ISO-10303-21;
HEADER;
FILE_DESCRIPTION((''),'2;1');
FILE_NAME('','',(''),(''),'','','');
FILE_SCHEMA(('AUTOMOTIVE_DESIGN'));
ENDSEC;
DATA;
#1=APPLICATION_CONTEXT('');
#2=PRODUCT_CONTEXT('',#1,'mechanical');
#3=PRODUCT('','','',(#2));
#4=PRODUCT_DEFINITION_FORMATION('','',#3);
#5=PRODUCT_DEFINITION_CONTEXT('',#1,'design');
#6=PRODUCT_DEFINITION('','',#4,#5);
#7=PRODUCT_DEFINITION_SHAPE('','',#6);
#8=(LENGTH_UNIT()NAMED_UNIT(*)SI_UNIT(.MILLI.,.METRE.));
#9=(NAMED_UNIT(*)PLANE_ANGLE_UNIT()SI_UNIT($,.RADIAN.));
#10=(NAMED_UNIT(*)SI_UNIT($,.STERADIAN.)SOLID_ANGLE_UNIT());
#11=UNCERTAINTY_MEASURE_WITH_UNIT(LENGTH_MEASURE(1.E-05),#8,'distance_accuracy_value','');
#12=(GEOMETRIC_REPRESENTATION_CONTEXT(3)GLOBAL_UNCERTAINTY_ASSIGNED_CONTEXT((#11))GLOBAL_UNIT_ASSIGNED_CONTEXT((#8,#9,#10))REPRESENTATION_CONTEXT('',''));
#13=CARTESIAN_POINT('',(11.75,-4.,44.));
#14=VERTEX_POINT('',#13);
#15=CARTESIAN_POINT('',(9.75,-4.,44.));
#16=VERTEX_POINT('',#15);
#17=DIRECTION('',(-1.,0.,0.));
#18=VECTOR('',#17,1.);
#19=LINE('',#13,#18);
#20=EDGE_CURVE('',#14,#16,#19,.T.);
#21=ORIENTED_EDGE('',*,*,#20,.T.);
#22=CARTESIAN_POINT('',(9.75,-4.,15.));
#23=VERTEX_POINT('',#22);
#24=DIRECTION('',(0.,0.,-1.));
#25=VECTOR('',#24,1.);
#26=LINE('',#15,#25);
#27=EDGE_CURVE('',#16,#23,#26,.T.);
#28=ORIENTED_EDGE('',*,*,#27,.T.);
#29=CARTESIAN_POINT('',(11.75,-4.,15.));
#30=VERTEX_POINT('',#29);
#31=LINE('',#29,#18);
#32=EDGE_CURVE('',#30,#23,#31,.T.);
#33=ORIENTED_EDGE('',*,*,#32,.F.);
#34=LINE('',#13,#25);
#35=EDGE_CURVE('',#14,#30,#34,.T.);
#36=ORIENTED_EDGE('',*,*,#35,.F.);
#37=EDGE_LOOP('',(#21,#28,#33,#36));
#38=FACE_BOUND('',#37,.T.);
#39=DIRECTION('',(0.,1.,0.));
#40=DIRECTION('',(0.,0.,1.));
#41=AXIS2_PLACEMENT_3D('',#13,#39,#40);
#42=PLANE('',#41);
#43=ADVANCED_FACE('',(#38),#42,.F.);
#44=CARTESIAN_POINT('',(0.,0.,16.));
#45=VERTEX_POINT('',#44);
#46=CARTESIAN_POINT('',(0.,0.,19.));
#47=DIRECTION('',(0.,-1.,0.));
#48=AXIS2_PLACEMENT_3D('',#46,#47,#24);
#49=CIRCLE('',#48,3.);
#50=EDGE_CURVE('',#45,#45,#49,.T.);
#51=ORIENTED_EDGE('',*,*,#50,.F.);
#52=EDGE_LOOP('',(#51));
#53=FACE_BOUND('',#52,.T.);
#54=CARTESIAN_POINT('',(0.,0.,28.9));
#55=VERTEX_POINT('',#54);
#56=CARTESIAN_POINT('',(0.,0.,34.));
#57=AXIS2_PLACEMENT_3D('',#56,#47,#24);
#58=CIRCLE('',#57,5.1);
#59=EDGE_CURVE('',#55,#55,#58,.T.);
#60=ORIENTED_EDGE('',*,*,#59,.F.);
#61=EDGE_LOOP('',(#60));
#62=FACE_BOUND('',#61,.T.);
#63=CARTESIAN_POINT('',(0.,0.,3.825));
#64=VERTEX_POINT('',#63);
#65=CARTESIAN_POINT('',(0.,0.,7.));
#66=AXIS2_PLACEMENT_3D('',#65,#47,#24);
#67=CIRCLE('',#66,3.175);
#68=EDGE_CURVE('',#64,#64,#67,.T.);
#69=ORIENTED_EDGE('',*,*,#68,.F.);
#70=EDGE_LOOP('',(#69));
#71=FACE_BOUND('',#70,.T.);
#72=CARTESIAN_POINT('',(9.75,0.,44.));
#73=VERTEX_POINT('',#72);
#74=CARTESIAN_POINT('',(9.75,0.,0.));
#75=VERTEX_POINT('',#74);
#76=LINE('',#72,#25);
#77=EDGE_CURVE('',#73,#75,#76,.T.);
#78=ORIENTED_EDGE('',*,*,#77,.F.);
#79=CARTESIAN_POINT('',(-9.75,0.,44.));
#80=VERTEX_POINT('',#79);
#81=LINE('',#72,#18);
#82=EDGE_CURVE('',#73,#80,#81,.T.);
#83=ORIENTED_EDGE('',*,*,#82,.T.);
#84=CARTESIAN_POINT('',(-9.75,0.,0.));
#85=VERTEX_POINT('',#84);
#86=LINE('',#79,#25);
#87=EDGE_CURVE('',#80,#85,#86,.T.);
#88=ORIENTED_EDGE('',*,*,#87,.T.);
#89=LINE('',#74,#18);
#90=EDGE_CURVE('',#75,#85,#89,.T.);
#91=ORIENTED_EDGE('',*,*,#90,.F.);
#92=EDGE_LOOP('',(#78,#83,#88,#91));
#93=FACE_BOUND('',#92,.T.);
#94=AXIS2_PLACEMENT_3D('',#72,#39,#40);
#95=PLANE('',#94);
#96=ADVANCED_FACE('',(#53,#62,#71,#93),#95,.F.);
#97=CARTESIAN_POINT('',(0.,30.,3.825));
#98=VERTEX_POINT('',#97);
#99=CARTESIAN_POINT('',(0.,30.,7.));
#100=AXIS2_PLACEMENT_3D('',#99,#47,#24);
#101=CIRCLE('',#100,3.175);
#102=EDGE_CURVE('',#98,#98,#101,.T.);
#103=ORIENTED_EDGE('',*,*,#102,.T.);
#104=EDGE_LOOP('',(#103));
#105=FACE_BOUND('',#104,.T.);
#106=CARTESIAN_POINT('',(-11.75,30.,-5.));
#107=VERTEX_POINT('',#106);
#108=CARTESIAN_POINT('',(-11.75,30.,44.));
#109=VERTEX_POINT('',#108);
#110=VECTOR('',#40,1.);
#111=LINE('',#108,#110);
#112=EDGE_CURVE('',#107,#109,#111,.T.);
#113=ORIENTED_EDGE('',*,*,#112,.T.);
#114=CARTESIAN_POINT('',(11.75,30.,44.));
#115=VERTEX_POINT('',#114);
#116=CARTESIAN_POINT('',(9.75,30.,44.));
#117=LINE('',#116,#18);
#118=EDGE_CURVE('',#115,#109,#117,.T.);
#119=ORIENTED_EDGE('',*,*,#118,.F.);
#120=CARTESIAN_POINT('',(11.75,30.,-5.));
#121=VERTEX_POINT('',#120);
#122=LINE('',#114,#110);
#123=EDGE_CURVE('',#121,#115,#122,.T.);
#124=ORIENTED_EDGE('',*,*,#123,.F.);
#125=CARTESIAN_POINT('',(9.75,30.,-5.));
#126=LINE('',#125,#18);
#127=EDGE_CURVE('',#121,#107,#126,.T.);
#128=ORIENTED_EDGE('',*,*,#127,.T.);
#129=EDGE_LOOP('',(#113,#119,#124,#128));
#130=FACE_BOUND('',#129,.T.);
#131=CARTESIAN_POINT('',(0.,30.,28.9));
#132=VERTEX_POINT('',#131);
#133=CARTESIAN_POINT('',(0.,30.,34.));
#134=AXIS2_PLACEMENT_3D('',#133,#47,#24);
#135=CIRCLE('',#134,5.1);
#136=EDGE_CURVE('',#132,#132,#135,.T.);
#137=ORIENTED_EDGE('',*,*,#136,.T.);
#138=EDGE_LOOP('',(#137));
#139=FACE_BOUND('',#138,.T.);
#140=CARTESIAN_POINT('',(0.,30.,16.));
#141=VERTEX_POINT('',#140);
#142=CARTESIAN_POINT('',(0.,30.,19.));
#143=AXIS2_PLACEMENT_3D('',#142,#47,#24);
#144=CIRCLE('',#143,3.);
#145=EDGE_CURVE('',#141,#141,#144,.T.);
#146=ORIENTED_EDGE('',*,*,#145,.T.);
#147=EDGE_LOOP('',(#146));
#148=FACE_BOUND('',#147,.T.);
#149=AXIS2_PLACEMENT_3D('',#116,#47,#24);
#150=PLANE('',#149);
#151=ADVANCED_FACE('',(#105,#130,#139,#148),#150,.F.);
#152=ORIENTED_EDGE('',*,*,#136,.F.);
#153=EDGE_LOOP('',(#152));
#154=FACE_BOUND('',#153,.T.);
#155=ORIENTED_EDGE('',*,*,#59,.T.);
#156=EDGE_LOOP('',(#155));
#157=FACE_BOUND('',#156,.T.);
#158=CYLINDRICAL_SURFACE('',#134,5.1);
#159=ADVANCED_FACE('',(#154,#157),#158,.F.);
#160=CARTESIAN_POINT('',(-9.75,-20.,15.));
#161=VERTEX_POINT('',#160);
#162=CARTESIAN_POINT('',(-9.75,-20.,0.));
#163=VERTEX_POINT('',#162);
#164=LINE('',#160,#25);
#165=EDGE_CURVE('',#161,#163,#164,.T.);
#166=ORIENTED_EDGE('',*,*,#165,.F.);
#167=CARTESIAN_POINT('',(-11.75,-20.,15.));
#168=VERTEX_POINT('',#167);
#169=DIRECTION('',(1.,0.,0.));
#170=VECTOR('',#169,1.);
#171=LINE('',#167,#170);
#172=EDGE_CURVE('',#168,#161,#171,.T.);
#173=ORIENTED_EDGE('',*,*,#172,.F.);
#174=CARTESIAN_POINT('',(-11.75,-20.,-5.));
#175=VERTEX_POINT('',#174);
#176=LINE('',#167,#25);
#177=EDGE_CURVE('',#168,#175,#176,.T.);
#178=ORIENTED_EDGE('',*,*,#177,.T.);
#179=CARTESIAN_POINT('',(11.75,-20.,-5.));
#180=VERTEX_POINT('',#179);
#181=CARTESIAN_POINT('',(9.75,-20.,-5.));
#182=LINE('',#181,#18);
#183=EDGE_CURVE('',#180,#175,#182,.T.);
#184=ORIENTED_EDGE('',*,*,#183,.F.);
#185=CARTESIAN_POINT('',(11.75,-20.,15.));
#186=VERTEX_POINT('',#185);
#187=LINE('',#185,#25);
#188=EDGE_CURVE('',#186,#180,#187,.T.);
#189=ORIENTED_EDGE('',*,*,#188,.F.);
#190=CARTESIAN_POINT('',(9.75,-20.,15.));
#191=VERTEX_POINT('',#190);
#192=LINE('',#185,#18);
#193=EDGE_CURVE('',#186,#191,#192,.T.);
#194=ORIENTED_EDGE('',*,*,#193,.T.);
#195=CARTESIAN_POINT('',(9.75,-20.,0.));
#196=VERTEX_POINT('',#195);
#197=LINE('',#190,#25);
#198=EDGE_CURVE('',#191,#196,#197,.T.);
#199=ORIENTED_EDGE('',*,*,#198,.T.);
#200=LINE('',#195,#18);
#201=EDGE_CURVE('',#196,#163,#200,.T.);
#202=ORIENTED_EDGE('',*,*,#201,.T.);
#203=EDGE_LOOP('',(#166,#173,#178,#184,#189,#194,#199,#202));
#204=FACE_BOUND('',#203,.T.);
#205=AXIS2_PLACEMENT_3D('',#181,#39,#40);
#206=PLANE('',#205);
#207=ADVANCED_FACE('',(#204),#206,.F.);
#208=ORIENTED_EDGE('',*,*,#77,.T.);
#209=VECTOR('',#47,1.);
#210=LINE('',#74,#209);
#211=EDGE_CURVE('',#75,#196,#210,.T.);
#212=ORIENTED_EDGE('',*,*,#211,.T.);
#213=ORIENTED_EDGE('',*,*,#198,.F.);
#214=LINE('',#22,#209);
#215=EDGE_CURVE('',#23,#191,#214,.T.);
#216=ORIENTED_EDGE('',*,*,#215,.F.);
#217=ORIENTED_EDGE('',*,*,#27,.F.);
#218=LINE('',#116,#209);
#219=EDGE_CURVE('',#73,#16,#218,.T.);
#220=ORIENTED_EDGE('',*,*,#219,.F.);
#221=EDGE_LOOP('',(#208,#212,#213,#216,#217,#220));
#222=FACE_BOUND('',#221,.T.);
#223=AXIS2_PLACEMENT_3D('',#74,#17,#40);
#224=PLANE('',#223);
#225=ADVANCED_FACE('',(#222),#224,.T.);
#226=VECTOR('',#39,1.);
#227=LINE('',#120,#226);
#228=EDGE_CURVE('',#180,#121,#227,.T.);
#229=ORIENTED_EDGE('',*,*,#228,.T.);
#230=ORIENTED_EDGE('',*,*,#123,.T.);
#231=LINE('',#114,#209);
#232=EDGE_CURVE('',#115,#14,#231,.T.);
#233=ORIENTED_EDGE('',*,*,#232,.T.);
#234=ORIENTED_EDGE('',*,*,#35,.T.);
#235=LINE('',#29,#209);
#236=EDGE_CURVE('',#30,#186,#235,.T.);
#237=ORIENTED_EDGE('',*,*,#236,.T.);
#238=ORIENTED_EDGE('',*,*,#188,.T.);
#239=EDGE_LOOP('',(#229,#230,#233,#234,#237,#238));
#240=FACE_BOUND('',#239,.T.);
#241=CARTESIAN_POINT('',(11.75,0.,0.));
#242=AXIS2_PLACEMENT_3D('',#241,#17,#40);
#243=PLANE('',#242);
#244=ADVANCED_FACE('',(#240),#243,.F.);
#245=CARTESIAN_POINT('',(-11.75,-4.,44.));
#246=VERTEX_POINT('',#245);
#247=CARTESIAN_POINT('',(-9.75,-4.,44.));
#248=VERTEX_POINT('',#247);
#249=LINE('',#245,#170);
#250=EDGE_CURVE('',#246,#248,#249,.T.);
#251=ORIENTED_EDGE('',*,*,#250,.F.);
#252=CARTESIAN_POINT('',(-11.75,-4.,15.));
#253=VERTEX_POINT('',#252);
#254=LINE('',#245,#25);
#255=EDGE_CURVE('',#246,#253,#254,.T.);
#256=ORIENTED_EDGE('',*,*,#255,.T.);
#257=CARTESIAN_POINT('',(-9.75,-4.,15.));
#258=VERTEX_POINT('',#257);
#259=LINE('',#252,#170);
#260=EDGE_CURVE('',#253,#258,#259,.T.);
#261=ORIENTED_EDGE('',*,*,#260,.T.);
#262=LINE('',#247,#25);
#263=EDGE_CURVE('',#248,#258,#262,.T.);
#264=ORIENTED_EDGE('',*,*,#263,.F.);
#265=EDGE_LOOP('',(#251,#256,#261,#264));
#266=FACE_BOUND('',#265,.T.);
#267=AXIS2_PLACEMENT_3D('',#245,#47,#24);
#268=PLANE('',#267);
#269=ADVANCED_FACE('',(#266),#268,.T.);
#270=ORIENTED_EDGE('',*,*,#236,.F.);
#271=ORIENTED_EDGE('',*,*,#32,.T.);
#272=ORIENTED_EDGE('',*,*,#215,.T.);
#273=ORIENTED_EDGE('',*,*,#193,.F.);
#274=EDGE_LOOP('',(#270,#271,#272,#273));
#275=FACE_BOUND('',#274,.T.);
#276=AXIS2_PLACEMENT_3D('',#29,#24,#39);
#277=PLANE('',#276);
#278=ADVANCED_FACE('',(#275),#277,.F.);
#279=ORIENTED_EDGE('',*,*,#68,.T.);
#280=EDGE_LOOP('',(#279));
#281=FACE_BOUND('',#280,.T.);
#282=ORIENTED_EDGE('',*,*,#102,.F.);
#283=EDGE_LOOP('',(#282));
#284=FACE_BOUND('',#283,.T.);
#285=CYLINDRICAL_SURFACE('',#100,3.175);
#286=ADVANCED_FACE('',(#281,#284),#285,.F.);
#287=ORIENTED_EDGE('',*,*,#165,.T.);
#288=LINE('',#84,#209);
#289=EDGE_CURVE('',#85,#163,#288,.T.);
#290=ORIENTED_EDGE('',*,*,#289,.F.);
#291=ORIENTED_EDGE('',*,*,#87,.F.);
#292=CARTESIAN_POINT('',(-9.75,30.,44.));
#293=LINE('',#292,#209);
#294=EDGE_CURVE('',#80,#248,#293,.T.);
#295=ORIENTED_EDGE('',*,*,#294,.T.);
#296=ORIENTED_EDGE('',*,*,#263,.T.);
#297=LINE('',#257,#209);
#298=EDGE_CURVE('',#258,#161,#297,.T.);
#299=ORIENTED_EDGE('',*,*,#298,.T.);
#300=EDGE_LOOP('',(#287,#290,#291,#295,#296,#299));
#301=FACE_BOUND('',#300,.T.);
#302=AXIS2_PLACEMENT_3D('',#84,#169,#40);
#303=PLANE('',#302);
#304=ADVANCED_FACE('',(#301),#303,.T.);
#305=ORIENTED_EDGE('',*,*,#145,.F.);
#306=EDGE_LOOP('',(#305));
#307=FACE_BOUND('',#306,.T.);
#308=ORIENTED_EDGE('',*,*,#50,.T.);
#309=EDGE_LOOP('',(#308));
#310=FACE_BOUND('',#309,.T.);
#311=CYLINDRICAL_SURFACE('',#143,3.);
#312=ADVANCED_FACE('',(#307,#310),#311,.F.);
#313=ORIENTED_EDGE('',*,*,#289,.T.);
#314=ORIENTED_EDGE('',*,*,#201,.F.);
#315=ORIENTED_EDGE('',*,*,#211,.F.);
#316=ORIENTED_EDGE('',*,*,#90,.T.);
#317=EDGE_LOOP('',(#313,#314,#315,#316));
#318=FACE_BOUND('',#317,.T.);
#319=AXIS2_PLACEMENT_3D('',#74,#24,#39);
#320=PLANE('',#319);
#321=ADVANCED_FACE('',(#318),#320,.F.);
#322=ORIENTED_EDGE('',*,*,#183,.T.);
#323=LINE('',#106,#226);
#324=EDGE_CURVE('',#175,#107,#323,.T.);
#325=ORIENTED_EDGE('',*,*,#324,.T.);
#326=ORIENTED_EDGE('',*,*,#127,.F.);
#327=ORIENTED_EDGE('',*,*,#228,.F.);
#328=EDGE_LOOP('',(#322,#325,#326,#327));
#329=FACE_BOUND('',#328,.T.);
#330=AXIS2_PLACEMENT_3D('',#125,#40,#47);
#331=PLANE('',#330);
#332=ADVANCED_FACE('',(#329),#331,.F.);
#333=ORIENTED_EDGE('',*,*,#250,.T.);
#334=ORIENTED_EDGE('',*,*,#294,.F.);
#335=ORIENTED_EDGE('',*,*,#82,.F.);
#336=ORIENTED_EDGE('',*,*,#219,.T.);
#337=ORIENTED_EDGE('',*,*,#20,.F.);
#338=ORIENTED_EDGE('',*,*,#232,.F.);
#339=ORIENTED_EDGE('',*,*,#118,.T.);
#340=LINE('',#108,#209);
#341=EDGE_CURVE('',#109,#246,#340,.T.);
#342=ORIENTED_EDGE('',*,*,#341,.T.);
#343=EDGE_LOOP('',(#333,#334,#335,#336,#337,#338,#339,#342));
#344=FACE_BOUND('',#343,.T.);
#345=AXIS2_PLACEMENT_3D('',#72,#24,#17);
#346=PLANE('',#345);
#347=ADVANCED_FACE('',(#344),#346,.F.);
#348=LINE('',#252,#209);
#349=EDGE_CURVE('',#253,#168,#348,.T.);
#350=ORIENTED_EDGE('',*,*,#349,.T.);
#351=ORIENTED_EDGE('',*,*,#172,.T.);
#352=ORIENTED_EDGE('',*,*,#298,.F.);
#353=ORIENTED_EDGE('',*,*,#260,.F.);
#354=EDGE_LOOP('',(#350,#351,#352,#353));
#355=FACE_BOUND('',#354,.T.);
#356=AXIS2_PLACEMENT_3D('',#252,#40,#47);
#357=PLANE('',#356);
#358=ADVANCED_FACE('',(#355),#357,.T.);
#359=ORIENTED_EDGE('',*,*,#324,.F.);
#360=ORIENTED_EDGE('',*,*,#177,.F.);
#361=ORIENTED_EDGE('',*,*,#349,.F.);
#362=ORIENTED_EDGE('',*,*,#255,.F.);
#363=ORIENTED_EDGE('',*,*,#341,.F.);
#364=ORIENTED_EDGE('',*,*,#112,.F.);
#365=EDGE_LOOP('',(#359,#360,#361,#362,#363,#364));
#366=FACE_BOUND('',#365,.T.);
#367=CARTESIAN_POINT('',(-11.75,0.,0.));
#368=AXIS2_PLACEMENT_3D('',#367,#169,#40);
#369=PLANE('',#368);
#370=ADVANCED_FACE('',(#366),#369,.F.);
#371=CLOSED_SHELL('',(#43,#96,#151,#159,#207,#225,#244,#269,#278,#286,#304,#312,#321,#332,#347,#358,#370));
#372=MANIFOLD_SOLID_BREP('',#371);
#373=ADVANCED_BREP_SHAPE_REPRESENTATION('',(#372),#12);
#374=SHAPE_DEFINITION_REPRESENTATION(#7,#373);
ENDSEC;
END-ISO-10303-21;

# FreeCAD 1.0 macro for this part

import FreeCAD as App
import Part
import Sketcher


def add_polygon(sketch, points):
    """Adds a closed chain of lines whose ends are joined by coincident constraints."""
    first, n = sketch.GeometryCount, len(points)
    for a, b in zip(points, points[1:] + points[:1]):
        sketch.addGeometry(Part.LineSegment(App.Vector(*a, 0), App.Vector(*b, 0)), False)
    for i in range(n):
        sketch.addConstraint(Sketcher.Constraint("Coincident", first + i, 2, first + (i + 1) % n, 1))

doc = App.newDocument("Part")
body = doc.addObject("PartDesign::Body", "Body")

# Sketch on YZ plane
sketch1 = body.newObject("Sketcher::SketchObject", "Sketch")
sketch1.AttachmentSupport = (doc.getObject("YZ_Plane"), [""])
sketch1.MapMode = "FlatFace"
add_polygon(sketch1, [(0, 44), (0, 0), (-20, 0), (-20, -5), (30, -5), (30, 44)])  # lines 0-5
sketch1.addConstraint([
    Sketcher.Constraint("Vertical", 0),
    Sketcher.Constraint("Horizontal", 1),
    Sketcher.Constraint("Vertical", 2),
    Sketcher.Constraint("Horizontal", 3),
    Sketcher.Constraint("Vertical", 4),
    Sketcher.Constraint("Horizontal", 5),
    Sketcher.Constraint("Coincident", 0, 2, -1, 1),
    Sketcher.Constraint("DistanceX", 1, 2, 1, 1, 20.0),
    Sketcher.Constraint("DistanceX", 3, 1, 3, 2, 50.0),
    Sketcher.Constraint("DistanceY", 0, 2, 0, 1, 44.0),
    Sketcher.Constraint("DistanceY", 2, 2, 2, 1, 5.0),
])
pad1 = body.newObject("PartDesign::Pad", "Pad")
pad1.Profile = sketch1
pad1.Length = 19.5
pad1.Midplane = True

# Sketch on YZ plane
sketch2 = body.newObject("Sketcher::SketchObject", "Sketch001")
sketch2.AttachmentSupport = (doc.getObject("YZ_Plane"), [""])
sketch2.MapMode = "FlatFace"
sketch2.AttachmentOffset = App.Placement(App.Vector(0, 0, 9.75), App.Rotation())
add_polygon(sketch2, [(30, 44), (-4, 44), (-4, 15), (-20, 15), (-20, -5), (30, -5)])  # lines 0-5
sketch2.addConstraint([
    Sketcher.Constraint("Horizontal", 0),
    Sketcher.Constraint("Vertical", 1),
    Sketcher.Constraint("Horizontal", 2),
    Sketcher.Constraint("Vertical", 3),
    Sketcher.Constraint("Horizontal", 4),
    Sketcher.Constraint("Vertical", 5),
    Sketcher.Constraint("DistanceX", 0, 2, 0, 1, 34.0),
    Sketcher.Constraint("DistanceX", 2, 2, 2, 1, 16.0),
    Sketcher.Constraint("DistanceY", 1, 2, 1, 1, 29.0),
    Sketcher.Constraint("DistanceY", 3, 2, 3, 1, 20.0),
    Sketcher.Constraint("DistanceX", 0, 2, -1, 1, 4.0),
    Sketcher.Constraint("DistanceY", -1, 1, 0, 2, 44.0),
])
pad2 = body.newObject("PartDesign::Pad", "Pad001")
pad2.Profile = sketch2
pad2.Length = 2
doc.recompute()

mirrored = body.newObject("PartDesign::Mirrored", "Mirrored")
mirrored.Originals = [pad2]
mirrored.MirrorPlane = (doc.getObject("YZ_Plane"), [""])
body.Tip = mirrored

# Sketch on XZ plane
sketch3 = body.newObject("Sketcher::SketchObject", "Sketch002")
sketch3.AttachmentSupport = (doc.getObject("XZ_Plane"), [""])
sketch3.MapMode = "FlatFace"
sketch3.addGeometry([
    Part.Circle(App.Vector(0, 34, 0), App.Vector(0, 0, 1), 5.1),
    Part.Circle(App.Vector(0, 19, 0), App.Vector(0, 0, 1), 3),
    Part.Circle(App.Vector(0, 7, 0), App.Vector(0, 0, 1), 3.2),
], False)
sketch3.addConstraint([
    Sketcher.Constraint("PointOnObject", 0, 3, -2),
    Sketcher.Constraint("PointOnObject", 1, 3, -2),
    Sketcher.Constraint("PointOnObject", 2, 3, -2),
    Sketcher.Constraint("Diameter", 1, 6.0),
    Sketcher.Constraint("Diameter", 0, 10.2),
    Sketcher.Constraint("Diameter", 2, 6.35),
    Sketcher.Constraint("DistanceY", -1, 1, 0, 3, 34.0),
    Sketcher.Constraint("DistanceY", -1, 1, 1, 3, 19.0),
    Sketcher.Constraint("DistanceY", -1, 1, 2, 3, 7.0),
])
pocket1 = body.newObject("PartDesign::Pocket", "Pocket")
pocket1.Profile = sketch3
pocket1.Type = "ThroughAll"

doc.recompute()
